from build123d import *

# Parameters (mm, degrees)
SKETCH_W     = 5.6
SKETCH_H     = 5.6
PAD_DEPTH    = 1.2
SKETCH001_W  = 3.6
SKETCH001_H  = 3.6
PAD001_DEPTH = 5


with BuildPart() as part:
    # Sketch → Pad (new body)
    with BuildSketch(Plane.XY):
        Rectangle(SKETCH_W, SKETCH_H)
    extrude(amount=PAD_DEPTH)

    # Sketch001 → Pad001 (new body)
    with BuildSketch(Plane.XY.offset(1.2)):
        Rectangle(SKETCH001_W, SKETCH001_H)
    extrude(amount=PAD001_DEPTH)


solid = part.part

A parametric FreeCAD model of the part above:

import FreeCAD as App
import Part
import Sketcher

V = App.Vector


def add_polygon(sketch, points):
    """Adds a closed chain of lines whose ends are joined by coincident constraints."""
    first, n = sketch.GeometryCount, len(points)
    for a, b in zip(points, points[1:] + points[:1]):
        sketch.addGeometry(Part.LineSegment(App.Vector(*a, 0), App.Vector(*b, 0)), False)
    for i in range(n):
        sketch.addConstraint(Sketcher.Constraint("Coincident", first + i, 2, first + (i + 1) % n, 1))

doc = App.newDocument("Part")
body = doc.addObject("PartDesign::Body", "Body")

# Sketch on XY plane
sketch1 = body.newObject("Sketcher::SketchObject", "Sketch")
sketch1.AttachmentSupport = (doc.getObject("XY_Plane"), [""])
sketch1.MapMode = "FlatFace"
add_polygon(sketch1, [(-3, 3), (-3, -3), (3, -3), (3, 3)])  # lines 0-3
sketch1.addConstraint(Sketcher.Constraint("Vertical", 0))
sketch1.addConstraint(Sketcher.Constraint("Horizontal", 1))
sketch1.addConstraint(Sketcher.Constraint("Vertical", 2))
sketch1.addConstraint(Sketcher.Constraint("Horizontal", 3))
sketch1.addConstraint(Sketcher.Constraint("Symmetric", 0, 2, 2, 2, -1, 1))
sketch1.addConstraint(Sketcher.Constraint("Equal", 3, 0))
sketch1.addConstraint(Sketcher.Constraint("DistanceX", 1, 1, 1, 2, 5.6))
pad1 = body.newObject("PartDesign::Pad", "Pad")
pad1.Profile = sketch1
pad1.Length = 1.2

# Sketch on XY plane
sketch2 = body.newObject("Sketcher::SketchObject", "Sketch001")
sketch2.AttachmentSupport = (doc.getObject("XY_Plane"), [""])
sketch2.MapMode = "FlatFace"
sketch2.AttachmentOffset = App.Placement(V(0, 0, 1.2), App.Rotation())
add_polygon(sketch2, [(-1.8, 1.8), (-1.8, -1.8), (1.8, -1.8), (1.8, 1.8)])  # lines 0-3
sketch2.addConstraint(Sketcher.Constraint("Vertical", 0))
sketch2.addConstraint(Sketcher.Constraint("Horizontal", 1))
sketch2.addConstraint(Sketcher.Constraint("Vertical", 2))
sketch2.addConstraint(Sketcher.Constraint("Horizontal", 3))
sketch2.addConstraint(Sketcher.Constraint("Symmetric", 0, 2, 2, 2, -1, 1))
sketch2.addConstraint(Sketcher.Constraint("Equal", 3, 0))
sketch2.addConstraint(Sketcher.Constraint("DistanceX", 1, 1, 1, 2, 3.6))
pad2 = body.newObject("PartDesign::Pad", "Pad001")
pad2.Profile = sketch2
pad2.Length = 5

doc.recompute()
